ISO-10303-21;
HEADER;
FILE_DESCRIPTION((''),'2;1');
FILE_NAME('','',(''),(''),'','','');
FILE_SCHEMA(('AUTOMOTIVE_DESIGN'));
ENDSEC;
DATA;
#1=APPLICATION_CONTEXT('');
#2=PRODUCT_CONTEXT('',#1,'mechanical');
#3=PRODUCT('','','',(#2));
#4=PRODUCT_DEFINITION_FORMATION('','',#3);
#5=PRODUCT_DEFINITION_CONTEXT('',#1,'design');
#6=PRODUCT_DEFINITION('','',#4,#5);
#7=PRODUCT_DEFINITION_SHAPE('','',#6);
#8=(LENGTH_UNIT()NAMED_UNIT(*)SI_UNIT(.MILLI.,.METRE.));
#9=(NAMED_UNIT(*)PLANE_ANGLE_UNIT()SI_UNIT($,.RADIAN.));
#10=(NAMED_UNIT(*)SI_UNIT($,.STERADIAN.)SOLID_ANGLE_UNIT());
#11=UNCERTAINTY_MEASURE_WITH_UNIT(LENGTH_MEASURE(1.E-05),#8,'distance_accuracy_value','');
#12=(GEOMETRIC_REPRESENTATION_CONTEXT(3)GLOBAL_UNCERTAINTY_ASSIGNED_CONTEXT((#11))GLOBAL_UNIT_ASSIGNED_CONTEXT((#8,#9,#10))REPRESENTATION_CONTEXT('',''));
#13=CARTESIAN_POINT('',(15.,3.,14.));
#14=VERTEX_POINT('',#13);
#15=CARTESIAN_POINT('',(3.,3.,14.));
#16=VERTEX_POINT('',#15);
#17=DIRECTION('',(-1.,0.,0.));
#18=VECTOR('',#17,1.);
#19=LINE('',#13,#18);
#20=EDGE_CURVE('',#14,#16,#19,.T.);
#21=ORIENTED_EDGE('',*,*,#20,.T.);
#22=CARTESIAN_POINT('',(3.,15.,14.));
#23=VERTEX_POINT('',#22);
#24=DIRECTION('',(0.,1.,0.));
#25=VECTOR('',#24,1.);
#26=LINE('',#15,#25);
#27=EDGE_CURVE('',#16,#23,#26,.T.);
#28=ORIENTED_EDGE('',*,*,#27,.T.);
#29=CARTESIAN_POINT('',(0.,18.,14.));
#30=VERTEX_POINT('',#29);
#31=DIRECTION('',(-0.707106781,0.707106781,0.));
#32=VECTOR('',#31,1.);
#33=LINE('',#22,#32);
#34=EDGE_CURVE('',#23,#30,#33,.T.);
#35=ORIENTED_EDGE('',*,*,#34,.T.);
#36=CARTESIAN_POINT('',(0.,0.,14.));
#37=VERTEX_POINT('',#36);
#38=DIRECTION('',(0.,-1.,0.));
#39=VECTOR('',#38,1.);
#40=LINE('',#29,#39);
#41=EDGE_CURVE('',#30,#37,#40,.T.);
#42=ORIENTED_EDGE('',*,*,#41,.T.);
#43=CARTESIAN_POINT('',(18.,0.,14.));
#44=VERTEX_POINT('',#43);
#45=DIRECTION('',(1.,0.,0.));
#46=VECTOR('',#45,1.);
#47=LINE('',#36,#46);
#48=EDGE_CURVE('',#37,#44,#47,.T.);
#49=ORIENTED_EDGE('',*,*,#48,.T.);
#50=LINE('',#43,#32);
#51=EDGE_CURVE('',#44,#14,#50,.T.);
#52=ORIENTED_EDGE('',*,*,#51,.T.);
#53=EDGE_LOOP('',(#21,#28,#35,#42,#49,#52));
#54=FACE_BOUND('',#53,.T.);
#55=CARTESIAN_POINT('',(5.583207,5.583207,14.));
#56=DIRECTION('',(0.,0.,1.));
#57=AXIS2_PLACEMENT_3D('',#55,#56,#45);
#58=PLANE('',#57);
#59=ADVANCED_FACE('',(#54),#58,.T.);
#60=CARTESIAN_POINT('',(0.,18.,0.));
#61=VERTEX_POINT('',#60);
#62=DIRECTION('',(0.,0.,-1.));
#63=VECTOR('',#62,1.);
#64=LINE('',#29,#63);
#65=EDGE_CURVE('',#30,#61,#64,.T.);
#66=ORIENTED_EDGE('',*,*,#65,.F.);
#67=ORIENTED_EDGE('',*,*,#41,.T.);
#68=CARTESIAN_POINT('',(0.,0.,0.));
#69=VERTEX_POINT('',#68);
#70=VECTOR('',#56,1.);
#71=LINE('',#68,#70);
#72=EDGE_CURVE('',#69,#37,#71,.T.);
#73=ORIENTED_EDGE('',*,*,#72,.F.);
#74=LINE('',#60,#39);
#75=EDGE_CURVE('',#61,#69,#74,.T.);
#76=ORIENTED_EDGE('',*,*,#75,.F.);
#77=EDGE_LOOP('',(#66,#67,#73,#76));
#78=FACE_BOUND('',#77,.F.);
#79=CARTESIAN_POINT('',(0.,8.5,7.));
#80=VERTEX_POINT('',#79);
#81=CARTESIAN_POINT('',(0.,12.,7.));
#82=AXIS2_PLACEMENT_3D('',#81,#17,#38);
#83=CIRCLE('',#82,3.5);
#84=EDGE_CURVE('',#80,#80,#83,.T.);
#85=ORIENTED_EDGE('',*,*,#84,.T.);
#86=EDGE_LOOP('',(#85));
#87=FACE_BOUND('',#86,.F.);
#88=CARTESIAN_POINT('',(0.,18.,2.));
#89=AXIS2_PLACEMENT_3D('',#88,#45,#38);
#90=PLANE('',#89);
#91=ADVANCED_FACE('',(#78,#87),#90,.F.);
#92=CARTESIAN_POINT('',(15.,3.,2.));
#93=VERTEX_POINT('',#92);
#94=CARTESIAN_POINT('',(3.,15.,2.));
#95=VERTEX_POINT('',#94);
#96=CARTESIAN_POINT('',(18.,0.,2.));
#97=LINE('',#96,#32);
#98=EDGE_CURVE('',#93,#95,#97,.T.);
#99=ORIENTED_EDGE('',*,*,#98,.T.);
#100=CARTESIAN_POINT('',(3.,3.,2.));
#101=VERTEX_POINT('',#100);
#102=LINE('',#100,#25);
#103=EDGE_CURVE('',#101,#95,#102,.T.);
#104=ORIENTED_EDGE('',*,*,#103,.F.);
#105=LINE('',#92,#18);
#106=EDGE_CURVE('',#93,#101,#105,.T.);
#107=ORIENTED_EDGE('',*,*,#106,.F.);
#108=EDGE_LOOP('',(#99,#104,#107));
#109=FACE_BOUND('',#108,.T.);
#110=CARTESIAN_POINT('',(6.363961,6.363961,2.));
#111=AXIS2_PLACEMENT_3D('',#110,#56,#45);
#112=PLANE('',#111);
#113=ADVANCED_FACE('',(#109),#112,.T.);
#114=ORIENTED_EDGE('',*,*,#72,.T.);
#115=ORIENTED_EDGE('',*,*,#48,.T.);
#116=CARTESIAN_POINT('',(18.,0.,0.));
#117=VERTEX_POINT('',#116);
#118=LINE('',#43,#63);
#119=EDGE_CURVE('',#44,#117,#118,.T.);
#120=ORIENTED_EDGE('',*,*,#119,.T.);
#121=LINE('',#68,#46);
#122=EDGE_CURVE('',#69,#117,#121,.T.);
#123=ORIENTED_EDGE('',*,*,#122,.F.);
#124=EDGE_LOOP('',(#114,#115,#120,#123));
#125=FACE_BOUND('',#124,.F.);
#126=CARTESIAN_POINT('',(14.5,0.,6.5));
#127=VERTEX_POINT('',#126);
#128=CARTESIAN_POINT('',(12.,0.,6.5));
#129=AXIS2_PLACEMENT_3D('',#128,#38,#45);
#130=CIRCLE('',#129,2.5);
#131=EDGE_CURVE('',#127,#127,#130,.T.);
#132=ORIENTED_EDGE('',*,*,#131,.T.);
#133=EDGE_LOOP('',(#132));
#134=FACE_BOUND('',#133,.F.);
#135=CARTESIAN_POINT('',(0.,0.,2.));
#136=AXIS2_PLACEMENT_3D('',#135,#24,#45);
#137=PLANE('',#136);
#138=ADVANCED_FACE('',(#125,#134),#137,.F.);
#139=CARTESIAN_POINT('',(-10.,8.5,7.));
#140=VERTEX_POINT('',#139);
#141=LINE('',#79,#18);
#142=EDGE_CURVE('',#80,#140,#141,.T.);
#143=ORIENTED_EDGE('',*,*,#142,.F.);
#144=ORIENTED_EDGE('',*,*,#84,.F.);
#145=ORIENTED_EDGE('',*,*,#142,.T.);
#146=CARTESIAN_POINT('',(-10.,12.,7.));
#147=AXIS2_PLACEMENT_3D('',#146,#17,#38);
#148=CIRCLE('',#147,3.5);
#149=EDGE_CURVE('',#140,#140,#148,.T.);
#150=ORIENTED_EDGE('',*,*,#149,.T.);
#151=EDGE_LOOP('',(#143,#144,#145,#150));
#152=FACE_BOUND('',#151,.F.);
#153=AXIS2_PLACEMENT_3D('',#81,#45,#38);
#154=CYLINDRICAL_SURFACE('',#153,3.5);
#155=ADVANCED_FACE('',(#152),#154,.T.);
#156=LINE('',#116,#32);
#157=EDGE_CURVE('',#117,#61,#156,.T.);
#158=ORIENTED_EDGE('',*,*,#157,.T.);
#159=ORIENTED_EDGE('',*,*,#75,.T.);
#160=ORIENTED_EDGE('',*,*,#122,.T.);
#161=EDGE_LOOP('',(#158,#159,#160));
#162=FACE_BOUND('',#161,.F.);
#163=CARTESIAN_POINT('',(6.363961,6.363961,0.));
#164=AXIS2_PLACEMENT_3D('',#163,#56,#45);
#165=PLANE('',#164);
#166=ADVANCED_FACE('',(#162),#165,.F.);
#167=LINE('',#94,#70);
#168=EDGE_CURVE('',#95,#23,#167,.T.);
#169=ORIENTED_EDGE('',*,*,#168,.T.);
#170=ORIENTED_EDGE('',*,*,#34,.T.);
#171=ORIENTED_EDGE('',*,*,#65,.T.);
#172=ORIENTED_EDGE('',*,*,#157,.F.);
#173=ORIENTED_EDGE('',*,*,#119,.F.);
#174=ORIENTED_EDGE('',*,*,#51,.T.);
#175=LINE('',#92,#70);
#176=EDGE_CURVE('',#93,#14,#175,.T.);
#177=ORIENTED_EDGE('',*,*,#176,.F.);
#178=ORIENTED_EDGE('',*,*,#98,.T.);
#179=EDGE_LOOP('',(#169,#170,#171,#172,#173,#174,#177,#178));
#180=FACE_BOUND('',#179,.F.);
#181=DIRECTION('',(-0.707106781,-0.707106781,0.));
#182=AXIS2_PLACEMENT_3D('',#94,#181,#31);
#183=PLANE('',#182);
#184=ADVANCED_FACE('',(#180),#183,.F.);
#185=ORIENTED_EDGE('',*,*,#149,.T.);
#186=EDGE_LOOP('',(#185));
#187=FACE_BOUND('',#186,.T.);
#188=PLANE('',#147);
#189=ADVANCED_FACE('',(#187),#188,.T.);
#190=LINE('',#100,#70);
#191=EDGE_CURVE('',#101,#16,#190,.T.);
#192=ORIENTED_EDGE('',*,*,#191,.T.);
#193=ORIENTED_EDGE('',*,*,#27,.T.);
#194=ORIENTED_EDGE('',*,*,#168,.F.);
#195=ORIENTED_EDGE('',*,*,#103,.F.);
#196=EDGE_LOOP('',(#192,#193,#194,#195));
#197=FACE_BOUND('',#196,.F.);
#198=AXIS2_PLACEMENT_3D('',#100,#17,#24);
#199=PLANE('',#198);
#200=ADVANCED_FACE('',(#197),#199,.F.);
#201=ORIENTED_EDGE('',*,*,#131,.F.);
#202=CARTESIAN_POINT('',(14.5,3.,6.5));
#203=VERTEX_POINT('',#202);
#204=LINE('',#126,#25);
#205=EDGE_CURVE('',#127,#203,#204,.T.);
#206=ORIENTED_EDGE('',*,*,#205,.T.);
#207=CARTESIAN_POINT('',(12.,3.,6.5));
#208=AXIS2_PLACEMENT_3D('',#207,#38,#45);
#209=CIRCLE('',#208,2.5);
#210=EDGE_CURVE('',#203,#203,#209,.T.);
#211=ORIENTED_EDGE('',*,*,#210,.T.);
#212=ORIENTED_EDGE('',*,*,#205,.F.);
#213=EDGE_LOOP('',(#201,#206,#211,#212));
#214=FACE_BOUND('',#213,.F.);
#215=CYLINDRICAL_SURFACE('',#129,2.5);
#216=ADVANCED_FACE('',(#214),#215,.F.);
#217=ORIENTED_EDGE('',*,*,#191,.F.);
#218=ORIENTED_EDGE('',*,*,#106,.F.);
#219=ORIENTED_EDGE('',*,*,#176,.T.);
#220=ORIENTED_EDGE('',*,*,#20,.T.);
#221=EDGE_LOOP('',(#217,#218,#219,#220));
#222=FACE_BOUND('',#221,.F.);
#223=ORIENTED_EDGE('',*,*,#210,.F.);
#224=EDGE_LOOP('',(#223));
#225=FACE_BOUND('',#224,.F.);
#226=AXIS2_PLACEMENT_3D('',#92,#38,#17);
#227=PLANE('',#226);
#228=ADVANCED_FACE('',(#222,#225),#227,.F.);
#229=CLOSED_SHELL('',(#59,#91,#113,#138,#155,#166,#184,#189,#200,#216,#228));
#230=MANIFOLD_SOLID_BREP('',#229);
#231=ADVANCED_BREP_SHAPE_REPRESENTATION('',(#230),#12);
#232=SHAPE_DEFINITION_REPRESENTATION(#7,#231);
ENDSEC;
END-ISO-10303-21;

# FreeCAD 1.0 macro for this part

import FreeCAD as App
import Part
import Sketcher

V = App.Vector

doc = App.newDocument("Part")
body = doc.addObject("PartDesign::Body", "Body")

# Sketch on XY plane
sketch1 = body.newObject("Sketcher::SketchObject", "Sketch")
sketch1.AttachmentSupport = (doc.getObject("XY_Plane"), [""])
sketch1.MapMode = "FlatFace"
sketch1.addGeometry(Part.LineSegment(V(0, 18, 0), V(0, 0, 0)), False)
sketch1.addGeometry(Part.LineSegment(V(0, 0, 0), V(18, 0, 0)), False)
sketch1.addGeometry(Part.LineSegment(V(18, 0, 0), V(0, 18, 0)), False)
sketch1.addConstraint(Sketcher.Constraint("Coincident", 0, 2, 1, 1))
sketch1.addConstraint(Sketcher.Constraint("Coincident", 1, 2, 2, 1))
sketch1.addConstraint(Sketcher.Constraint("Coincident", 2, 2, 0, 1))
sketch1.addConstraint(Sketcher.Constraint("Vertical", 0))
sketch1.addConstraint(Sketcher.Constraint("Horizontal", 1))
sketch1.addConstraint(Sketcher.Constraint("Coincident", 0, 2, -1, 1))
sketch1.addConstraint(Sketcher.Constraint("Equal", 1, 0))
sketch1.addConstraint(Sketcher.Constraint("DistanceX", 1, 1, 1, 2, 18.0))
pad1 = body.newObject("PartDesign::Pad", "Pad")
pad1.Profile = sketch1
pad1.Length = 2

# Sketch on XY plane
sketch2 = body.newObject("Sketcher::SketchObject", "Sketch001")
sketch2.AttachmentSupport = (doc.getObject("XY_Plane"), [""])
sketch2.MapMode = "FlatFace"
sketch2.AttachmentOffset = App.Placement(V(0, 0, 2), App.Rotation())
sketch2.addGeometry(Part.LineSegment(V(0, 18, 0), V(0, 0, 0)), False)
sketch2.addGeometry(Part.LineSegment(V(0, 0, 0), V(18, 0, 0)), False)
sketch2.addGeometry(Part.LineSegment(V(18, 0, 0), V(15, 3, 0)), False)
sketch2.addGeometry(Part.LineSegment(V(15, 3, 0), V(3, 3, 0)), False)
sketch2.addGeometry(Part.LineSegment(V(3, 3, 0), V(3, 15, 0)), False)
sketch2.addGeometry(Part.LineSegment(V(3, 15, 0), V(0, 18, 0)), False)
sketch2.addConstraint(Sketcher.Constraint("Coincident", 0, 2, 1, 1))
sketch2.addConstraint(Sketcher.Constraint("Coincident", 1, 2, 2, 1))
sketch2.addConstraint(Sketcher.Constraint("Coincident", 2, 2, 3, 1))
sketch2.addConstraint(Sketcher.Constraint("Coincident", 3, 2, 4, 1))
sketch2.addConstraint(Sketcher.Constraint("Coincident", 4, 2, 5, 1))
sketch2.addConstraint(Sketcher.Constraint("Coincident", 5, 2, 0, 1))
sketch2.addConstraint(Sketcher.Constraint("Vertical", 0))
sketch2.addConstraint(Sketcher.Constraint("Horizontal", 1))
sketch2.addConstraint(Sketcher.Constraint("Horizontal", 3))
sketch2.addConstraint(Sketcher.Constraint("Vertical", 4))
sketch2.addConstraint(Sketcher.Constraint("Coincident", 0, 2, -1, 1))
sketch2.addConstraint(Sketcher.Constraint("Parallel", 2, 5))
sketch2.addConstraint(Sketcher.Constraint("Equal", 1, 0))
sketch2.addConstraint(Sketcher.Constraint("Equal", 3, 4))
sketch2.addConstraint(Sketcher.Constraint("Equal", 2, 5))
sketch2.addConstraint(Sketcher.Constraint("DistanceX", 1, 1, 1, 2, 18.0))
sketch2.addConstraint(Sketcher.Constraint("DistanceX", 3, 2, 3, 1, 12.0))
pad2 = body.newObject("PartDesign::Pad", "Pad001")
pad2.Profile = sketch2
pad2.Length = 12

# Sketch on YZ plane
sketch3 = body.newObject("Sketcher::SketchObject", "Sketch002")
sketch3.AttachmentSupport = (doc.getObject("YZ_Plane"), [""])
sketch3.MapMode = "FlatFace"
sketch3.addGeometry(Part.Circle(V(12, 7, 0), V(0, 0, 1), 3.5), False)
sketch3.addConstraint(Sketcher.Constraint("Diameter", 0, 7.0))
sketch3.addConstraint(Sketcher.Constraint("DistanceX", -1, 1, 0, 3, 12.0))
sketch3.addConstraint(Sketcher.Constraint("DistanceY", -1, 1, 0, 3, 7.0))
pad3 = body.newObject("PartDesign::Pad", "Pad002")
pad3.Profile = sketch3
pad3.Length = 10
pad3.Reversed = True

# Sketch on XZ plane
sketch4 = body.newObject("Sketcher::SketchObject", "Sketch003")
sketch4.AttachmentSupport = (doc.getObject("XZ_Plane"), [""])
sketch4.MapMode = "FlatFace"
sketch4.addGeometry(Part.Circle(V(12, 6.5, 0), V(0, 0, 1), 2.5), False)
sketch4.addConstraint(Sketcher.Constraint("Diameter", 0, 5.0))
sketch4.addConstraint(Sketcher.Constraint("DistanceX", -1, 1, 0, 3, 12.0))
sketch4.addConstraint(Sketcher.Constraint("DistanceY", -1, 1, 0, 3, 6.5))
pocket1 = body.newObject("PartDesign::Pocket", "Pocket")
pocket1.Profile = sketch4
pocket1.Type = "ThroughAll"

doc.recompute()
